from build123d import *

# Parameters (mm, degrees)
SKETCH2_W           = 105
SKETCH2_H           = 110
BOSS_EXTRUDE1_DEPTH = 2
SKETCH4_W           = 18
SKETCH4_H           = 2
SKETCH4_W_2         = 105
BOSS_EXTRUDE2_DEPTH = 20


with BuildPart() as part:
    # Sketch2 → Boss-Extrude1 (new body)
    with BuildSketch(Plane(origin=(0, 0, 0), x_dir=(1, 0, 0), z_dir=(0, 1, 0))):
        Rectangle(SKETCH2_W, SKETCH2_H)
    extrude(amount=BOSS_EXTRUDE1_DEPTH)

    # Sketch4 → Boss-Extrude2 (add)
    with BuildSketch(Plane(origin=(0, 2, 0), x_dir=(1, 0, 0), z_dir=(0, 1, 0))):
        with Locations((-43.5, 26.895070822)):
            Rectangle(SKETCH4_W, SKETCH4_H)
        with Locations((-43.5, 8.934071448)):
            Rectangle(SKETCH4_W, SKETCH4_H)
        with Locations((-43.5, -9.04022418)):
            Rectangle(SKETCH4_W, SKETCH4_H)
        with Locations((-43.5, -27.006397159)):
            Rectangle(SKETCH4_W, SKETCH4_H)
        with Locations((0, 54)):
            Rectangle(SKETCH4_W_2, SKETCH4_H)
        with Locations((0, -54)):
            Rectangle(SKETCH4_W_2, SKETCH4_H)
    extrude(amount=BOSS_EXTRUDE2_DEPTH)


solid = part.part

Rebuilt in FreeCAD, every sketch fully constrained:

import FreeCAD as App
import Part
import Sketcher
Q = App.Units.Quantity


def add_polygon(sketch, points):
    """Adds a closed chain of lines whose ends are joined by coincident constraints."""
    first, n = sketch.GeometryCount, len(points)
    for a, b in zip(points, points[1:] + points[:1]):
        sketch.addGeometry(Part.LineSegment(App.Vector(*a, 0), App.Vector(*b, 0)), False)
    for i in range(n):
        sketch.addConstraint(Sketcher.Constraint("Coincident", first + i, 2, first + (i + 1) % n, 1))

doc = App.newDocument("Part")
body = doc.addObject("PartDesign::Body", "Body")

sketch1 = doc.addObject("Sketcher::SketchObject", "Sketch")
body.addObject(sketch1)
sketch1.AttachmentSupport = (doc.XZ_Plane, [""])
sketch1.MapMode = "FlatFace"
add_polygon(sketch1, [(-52, -55), (-52, 55), (52, 55), (52, -55)])
sketch1.addConstraint([
    Sketcher.Constraint("Vertical", 0),
    Sketcher.Constraint("Horizontal", 1),
    Sketcher.Constraint("Vertical", 2),
    Sketcher.Constraint("Horizontal", 3),
    Sketcher.Constraint("Symmetric", 0, 2, 2, 2, -1, 1),
    Sketcher.Constraint("DistanceX", 1, 1, 1, 2, Q("105 mm")),
    Sketcher.Constraint("DistanceY", 0, 1, 0, 2, Q("110 mm")),
])
pad1 = doc.addObject("PartDesign::Pad", "Pad")
body.addObject(pad1)
pad1.Profile = sketch1
pad1.Length = 2
pad1.Reversed = True

sketch2 = doc.addObject("Sketcher::SketchObject", "Sketch001")
body.addObject(sketch2)
sketch2.AttachmentSupport = (doc.XZ_Plane, [""])
sketch2.MapMode = "FlatFace"
sketch2.AttachmentOffset = App.Placement(App.Vector(0, 0, -2), App.Rotation())
add_polygon(sketch2, [(-52.5, -27.9), (-52.5, -25.9), (-34.5, -25.9), (-34.5, -27.9)])
add_polygon(sketch2, [(-52.5, -9.9), (-52.5, -7.9), (-34.5, -7.9), (-34.5, -9.9)])
add_polygon(sketch2, [(-52.5, 8), (-52.5, 10), (-34.5, 10), (-34.5, 8)])
add_polygon(sketch2, [(-52.5, 26), (-52.5, 28), (-34.5, 28), (-34.5, 26)])
add_polygon(sketch2, [(-52.5, -55), (-52.5, -53), (52.5, -53), (52.5, -55)])
add_polygon(sketch2, [(-52.5, 53), (-52.5, 55), (52.5, 55), (52.5, 53)])
sketch2.addConstraint([
    Sketcher.Constraint("Vertical", 0),
    Sketcher.Constraint("Horizontal", 1),
    Sketcher.Constraint("Vertical", 2),
    Sketcher.Constraint("Horizontal", 3),
    Sketcher.Constraint("Vertical", 4),
    Sketcher.Constraint("Horizontal", 5),
    Sketcher.Constraint("Vertical", 6),
    Sketcher.Constraint("Horizontal", 7),
    Sketcher.Constraint("Vertical", 8),
    Sketcher.Constraint("Horizontal", 9),
    Sketcher.Constraint("Vertical", 10),
    Sketcher.Constraint("Horizontal", 11),
    Sketcher.Constraint("Vertical", 12),
    Sketcher.Constraint("Horizontal", 13),
    Sketcher.Constraint("Vertical", 14),
    Sketcher.Constraint("Horizontal", 15),
    Sketcher.Constraint("Vertical", 16),
    Sketcher.Constraint("Horizontal", 17),
    Sketcher.Constraint("Vertical", 18),
    Sketcher.Constraint("Horizontal", 19),
    Sketcher.Constraint("Vertical", 20),
    Sketcher.Constraint("Horizontal", 21),
    Sketcher.Constraint("Vertical", 22),
    Sketcher.Constraint("Horizontal", 23),
    Sketcher.Constraint("Symmetric", 18, 2, 20, 2, -1, 1),
    Sketcher.Constraint("Symmetric", 16, 2, 22, 2, -1, 1),
    Sketcher.Constraint("Vertical", 3, 2, 4, 2),
    Sketcher.Constraint("Vertical", 2, 2, 5, 2),
    Sketcher.Constraint("Vertical", 7, 2, 8, 2),
    Sketcher.Constraint("Vertical", 6, 2, 9, 2),
    Sketcher.Constraint("Vertical", 11, 2, 12, 2),
    Sketcher.Constraint("Vertical", 10, 2, 13, 2),
    Sketcher.Constraint("Vertical", 15, 2, 16, 2),
    Sketcher.Constraint("Vertical", 19, 2, 20, 2),
    Sketcher.Constraint("Equal", 2, 4),
    Sketcher.Constraint("Equal", 6, 8),
    Sketcher.Constraint("Equal", 10, 12),
    Sketcher.Constraint("Equal", 14, 16),
    Sketcher.Constraint("DistanceX", 1, 1, 1, 2, Q("18 mm")),
    Sketcher.Constraint("DistanceX", 17, 1, 17, 2, Q("105 mm")),
    Sketcher.Constraint("DistanceY", 0, 1, 0, 2, Q("2 mm")),
    Sketcher.Constraint("DistanceY", 16, 2, -1, 1, Q("53 mm")),
    Sketcher.Constraint("DistanceY", 0, 2, 4, 2, Q("17.960999 mm")),
    Sketcher.Constraint("DistanceY", 0, 2, -1, 1, Q("25.895071 mm")),
    Sketcher.Constraint("DistanceY", 4, 2, 12, 2, Q("35.940469 mm")),
    Sketcher.Constraint("DistanceY", -1, 1, 8, 2, Q("10.040224 mm")),
])
pad2 = doc.addObject("PartDesign::Pad", "Pad001")
body.addObject(pad2)
pad2.Profile = sketch2
pad2.Length = 20
pad2.Reversed = True

doc.recompute()
